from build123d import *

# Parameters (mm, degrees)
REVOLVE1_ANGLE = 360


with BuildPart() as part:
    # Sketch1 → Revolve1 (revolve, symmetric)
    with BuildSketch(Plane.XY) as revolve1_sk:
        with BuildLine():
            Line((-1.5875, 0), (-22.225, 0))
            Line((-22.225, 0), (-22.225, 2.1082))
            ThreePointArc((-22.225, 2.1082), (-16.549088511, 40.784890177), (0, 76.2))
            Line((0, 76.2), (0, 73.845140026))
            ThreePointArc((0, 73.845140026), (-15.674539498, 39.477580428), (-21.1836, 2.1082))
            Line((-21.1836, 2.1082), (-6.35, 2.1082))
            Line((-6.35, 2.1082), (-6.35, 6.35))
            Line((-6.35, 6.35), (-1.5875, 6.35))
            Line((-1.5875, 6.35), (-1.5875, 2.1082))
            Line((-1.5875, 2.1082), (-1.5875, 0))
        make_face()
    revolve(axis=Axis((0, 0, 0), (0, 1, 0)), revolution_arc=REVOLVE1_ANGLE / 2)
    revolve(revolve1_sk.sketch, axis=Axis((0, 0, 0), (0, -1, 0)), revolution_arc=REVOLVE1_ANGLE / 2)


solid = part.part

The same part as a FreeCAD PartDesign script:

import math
import FreeCAD as App
import Part
import Sketcher
Q = App.Units.Quantity

doc = App.newDocument("Part")
body = doc.addObject("PartDesign::Body", "Body")

sketch1 = body.newObject("Sketcher::SketchObject", "Sketch")
sketch1.AttachmentSupport = (doc.getObject("XY_Plane"), [""])
sketch1.MapMode = "FlatFace"
sketch1.addGeometry(Part.LineSegment(App.Vector(-22.2, 0, 0), App.Vector(-1.6, 0, 0)), False)
sketch1.addGeometry(Part.LineSegment(App.Vector(-1.6, 0, 0), App.Vector(-1.6, 6.3, 0)), False)
sketch1.addGeometry(Part.LineSegment(App.Vector(-1.6, 6.3, 0), App.Vector(-6.3, 6.3, 0)), False)
sketch1.addGeometry(Part.LineSegment(App.Vector(-6.3, 6.3, 0), App.Vector(-6.3, 2.1, 0)), False)
sketch1.addGeometry(Part.LineSegment(App.Vector(-6.3, 2.1, 0), App.Vector(-21.2, 2.1, 0)), False)
sketch1.addGeometry(Part.ArcOfCircle(Part.Circle(App.Vector(113.4, 1.4, 0), App.Vector(0, 0, 1), 134.6), math.radians(147), math.radians(180)), False)
sketch1.addGeometry(Part.LineSegment(App.Vector(0, 73.8, 0), App.Vector(0, 76.2, 0)), False)
sketch1.addGeometry(Part.ArcOfCircle(Part.Circle(App.Vector(112.4, 2.1, 0), App.Vector(0, 0, 1), 134.6), math.radians(147), math.radians(180)), False)
sketch1.addGeometry(Part.LineSegment(App.Vector(-22.2, 2.1, 0), App.Vector(-22.2, 0, 0)), False)
sketch1.addConstraint(Sketcher.Constraint("Coincident", 0, 2, 1, 1))
sketch1.addConstraint(Sketcher.Constraint("Coincident", 1, 2, 2, 1))
sketch1.addConstraint(Sketcher.Constraint("Coincident", 2, 2, 3, 1))
sketch1.addConstraint(Sketcher.Constraint("Coincident", 3, 2, 4, 1))
sketch1.addConstraint(Sketcher.Constraint("Coincident", 4, 2, 5, 2))
sketch1.addConstraint(Sketcher.Constraint("Coincident", 5, 1, 6, 1))
sketch1.addConstraint(Sketcher.Constraint("Coincident", 6, 2, 7, 1))
sketch1.addConstraint(Sketcher.Constraint("Tangent", 7, 2, 8, 1))
sketch1.addConstraint(Sketcher.Constraint("Coincident", 8, 2, 0, 1))
sketch1.addConstraint(Sketcher.Constraint("Horizontal", 0))
sketch1.addConstraint(Sketcher.Constraint("Vertical", 1))
sketch1.addConstraint(Sketcher.Constraint("Horizontal", 2))
sketch1.addConstraint(Sketcher.Constraint("Vertical", 3))
sketch1.addConstraint(Sketcher.Constraint("Horizontal", 4))
sketch1.addConstraint(Sketcher.Constraint("Vertical", 6))
sketch1.addConstraint(Sketcher.Constraint("Vertical", 8))
sketch1.addConstraint(Sketcher.Constraint("Equal", 5, 7))
sketch1.addConstraint(Sketcher.Constraint("PointOnObject", 0, 2, -1))
sketch1.addConstraint(Sketcher.Constraint("PointOnObject", 5, 1, -2))
sketch1.addConstraint(Sketcher.Constraint("Horizontal", 7, 3, 3, 2))
sketch1.addConstraint(Sketcher.Constraint("DistanceY", -1, 1, 6, 2, Q("3 in")))
sketch1.addConstraint(Sketcher.Constraint("DistanceY", 1, 1, 1, 2, Q("0.25 in")))
sketch1.addConstraint(Sketcher.Constraint("DistanceX", 0, 1, 0, 2, Q("0.8125 in")))
sketch1.addConstraint(Sketcher.Constraint("DistanceX", 2, 2, 2, 1, Q("0.1875 in")))
sketch1.addConstraint(Sketcher.Constraint("DistanceX", 4, 2, 4, 1, Q("0.584 in")))
sketch1.addConstraint(Sketcher.Constraint("DistanceY", 3, 2, 3, 1, Q("0.167 in")))
sketch1.addConstraint(Sketcher.Constraint("DistanceX", 2, 2, -1, 1, Q("0.25 in")))
sketch1.addConstraint(Sketcher.Constraint("DistanceY", 6, 1, 6, 2, 2.35486))
revolution = body.newObject("PartDesign::Revolution", "Revolution")
revolution.Profile = sketch1
revolution.ReferenceAxis = (sketch1, ["V_Axis"])
revolution.Angle = 180

sketch2 = body.newObject("Sketcher::SketchObject", "Sketch001")
sketch2.AttachmentSupport = (doc.getObject("XY_Plane"), [""])
sketch2.MapMode = "FlatFace"
sketch2.addGeometry(Part.LineSegment(App.Vector(-22.2, 0, 0), App.Vector(-1.6, 0, 0)), False)
sketch2.addGeometry(Part.LineSegment(App.Vector(-1.6, 0, 0), App.Vector(-1.6, 6.3, 0)), False)
sketch2.addGeometry(Part.LineSegment(App.Vector(-1.6, 6.3, 0), App.Vector(-6.3, 6.3, 0)), False)
sketch2.addGeometry(Part.LineSegment(App.Vector(-6.3, 6.3, 0), App.Vector(-6.3, 2.1, 0)), False)
sketch2.addGeometry(Part.LineSegment(App.Vector(-6.3, 2.1, 0), App.Vector(-21.2, 2.1, 0)), False)
sketch2.addGeometry(Part.ArcOfCircle(Part.Circle(App.Vector(113.4, 1.4, 0), App.Vector(0, 0, 1), 134.6), math.radians(147), math.radians(180)), False)
sketch2.addGeometry(Part.LineSegment(App.Vector(0, 73.8, 0), App.Vector(0, 76.2, 0)), False)
sketch2.addGeometry(Part.ArcOfCircle(Part.Circle(App.Vector(112.4, 2.1, 0), App.Vector(0, 0, 1), 134.6), math.radians(147), math.radians(180)), False)
sketch2.addGeometry(Part.LineSegment(App.Vector(-22.2, 2.1, 0), App.Vector(-22.2, 0, 0)), False)
sketch2.addConstraint(Sketcher.Constraint("Coincident", 0, 2, 1, 1))
sketch2.addConstraint(Sketcher.Constraint("Coincident", 1, 2, 2, 1))
sketch2.addConstraint(Sketcher.Constraint("Coincident", 2, 2, 3, 1))
sketch2.addConstraint(Sketcher.Constraint("Coincident", 3, 2, 4, 1))
sketch2.addConstraint(Sketcher.Constraint("Coincident", 4, 2, 5, 2))
sketch2.addConstraint(Sketcher.Constraint("Coincident", 5, 1, 6, 1))
sketch2.addConstraint(Sketcher.Constraint("Coincident", 6, 2, 7, 1))
sketch2.addConstraint(Sketcher.Constraint("Tangent", 7, 2, 8, 1))
sketch2.addConstraint(Sketcher.Constraint("Coincident", 8, 2, 0, 1))
sketch2.addConstraint(Sketcher.Constraint("Horizontal", 0))
sketch2.addConstraint(Sketcher.Constraint("Vertical", 1))
sketch2.addConstraint(Sketcher.Constraint("Horizontal", 2))
sketch2.addConstraint(Sketcher.Constraint("Vertical", 3))
sketch2.addConstraint(Sketcher.Constraint("Horizontal", 4))
sketch2.addConstraint(Sketcher.Constraint("Vertical", 6))
sketch2.addConstraint(Sketcher.Constraint("Vertical", 8))
sketch2.addConstraint(Sketcher.Constraint("Equal", 5, 7))
sketch2.addConstraint(Sketcher.Constraint("PointOnObject", 0, 2, -1))
sketch2.addConstraint(Sketcher.Constraint("PointOnObject", 5, 1, -2))
sketch2.addConstraint(Sketcher.Constraint("Horizontal", 7, 3, 3, 2))
sketch2.addConstraint(Sketcher.Constraint("DistanceY", -1, 1, 6, 2, Q("3 in")))
sketch2.addConstraint(Sketcher.Constraint("DistanceY", 1, 1, 1, 2, Q("0.25 in")))
sketch2.addConstraint(Sketcher.Constraint("DistanceX", 0, 1, 0, 2, Q("0.8125 in")))
sketch2.addConstraint(Sketcher.Constraint("DistanceX", 2, 2, 2, 1, Q("0.1875 in")))
sketch2.addConstraint(Sketcher.Constraint("DistanceX", 4, 2, 4, 1, Q("0.584 in")))
sketch2.addConstraint(Sketcher.Constraint("DistanceY", 3, 2, 3, 1, Q("0.167 in")))
sketch2.addConstraint(Sketcher.Constraint("DistanceX", 2, 2, -1, 1, Q("0.25 in")))
sketch2.addConstraint(Sketcher.Constraint("DistanceY", 6, 1, 6, 2, 2.35486))
revolution2 = body.newObject("PartDesign::Revolution", "Revolution001")
revolution2.Profile = sketch2
revolution2.ReferenceAxis = (sketch2, ["V_Axis"])
revolution2.Angle = 180
revolution2.Reversed = True

doc.recompute()
